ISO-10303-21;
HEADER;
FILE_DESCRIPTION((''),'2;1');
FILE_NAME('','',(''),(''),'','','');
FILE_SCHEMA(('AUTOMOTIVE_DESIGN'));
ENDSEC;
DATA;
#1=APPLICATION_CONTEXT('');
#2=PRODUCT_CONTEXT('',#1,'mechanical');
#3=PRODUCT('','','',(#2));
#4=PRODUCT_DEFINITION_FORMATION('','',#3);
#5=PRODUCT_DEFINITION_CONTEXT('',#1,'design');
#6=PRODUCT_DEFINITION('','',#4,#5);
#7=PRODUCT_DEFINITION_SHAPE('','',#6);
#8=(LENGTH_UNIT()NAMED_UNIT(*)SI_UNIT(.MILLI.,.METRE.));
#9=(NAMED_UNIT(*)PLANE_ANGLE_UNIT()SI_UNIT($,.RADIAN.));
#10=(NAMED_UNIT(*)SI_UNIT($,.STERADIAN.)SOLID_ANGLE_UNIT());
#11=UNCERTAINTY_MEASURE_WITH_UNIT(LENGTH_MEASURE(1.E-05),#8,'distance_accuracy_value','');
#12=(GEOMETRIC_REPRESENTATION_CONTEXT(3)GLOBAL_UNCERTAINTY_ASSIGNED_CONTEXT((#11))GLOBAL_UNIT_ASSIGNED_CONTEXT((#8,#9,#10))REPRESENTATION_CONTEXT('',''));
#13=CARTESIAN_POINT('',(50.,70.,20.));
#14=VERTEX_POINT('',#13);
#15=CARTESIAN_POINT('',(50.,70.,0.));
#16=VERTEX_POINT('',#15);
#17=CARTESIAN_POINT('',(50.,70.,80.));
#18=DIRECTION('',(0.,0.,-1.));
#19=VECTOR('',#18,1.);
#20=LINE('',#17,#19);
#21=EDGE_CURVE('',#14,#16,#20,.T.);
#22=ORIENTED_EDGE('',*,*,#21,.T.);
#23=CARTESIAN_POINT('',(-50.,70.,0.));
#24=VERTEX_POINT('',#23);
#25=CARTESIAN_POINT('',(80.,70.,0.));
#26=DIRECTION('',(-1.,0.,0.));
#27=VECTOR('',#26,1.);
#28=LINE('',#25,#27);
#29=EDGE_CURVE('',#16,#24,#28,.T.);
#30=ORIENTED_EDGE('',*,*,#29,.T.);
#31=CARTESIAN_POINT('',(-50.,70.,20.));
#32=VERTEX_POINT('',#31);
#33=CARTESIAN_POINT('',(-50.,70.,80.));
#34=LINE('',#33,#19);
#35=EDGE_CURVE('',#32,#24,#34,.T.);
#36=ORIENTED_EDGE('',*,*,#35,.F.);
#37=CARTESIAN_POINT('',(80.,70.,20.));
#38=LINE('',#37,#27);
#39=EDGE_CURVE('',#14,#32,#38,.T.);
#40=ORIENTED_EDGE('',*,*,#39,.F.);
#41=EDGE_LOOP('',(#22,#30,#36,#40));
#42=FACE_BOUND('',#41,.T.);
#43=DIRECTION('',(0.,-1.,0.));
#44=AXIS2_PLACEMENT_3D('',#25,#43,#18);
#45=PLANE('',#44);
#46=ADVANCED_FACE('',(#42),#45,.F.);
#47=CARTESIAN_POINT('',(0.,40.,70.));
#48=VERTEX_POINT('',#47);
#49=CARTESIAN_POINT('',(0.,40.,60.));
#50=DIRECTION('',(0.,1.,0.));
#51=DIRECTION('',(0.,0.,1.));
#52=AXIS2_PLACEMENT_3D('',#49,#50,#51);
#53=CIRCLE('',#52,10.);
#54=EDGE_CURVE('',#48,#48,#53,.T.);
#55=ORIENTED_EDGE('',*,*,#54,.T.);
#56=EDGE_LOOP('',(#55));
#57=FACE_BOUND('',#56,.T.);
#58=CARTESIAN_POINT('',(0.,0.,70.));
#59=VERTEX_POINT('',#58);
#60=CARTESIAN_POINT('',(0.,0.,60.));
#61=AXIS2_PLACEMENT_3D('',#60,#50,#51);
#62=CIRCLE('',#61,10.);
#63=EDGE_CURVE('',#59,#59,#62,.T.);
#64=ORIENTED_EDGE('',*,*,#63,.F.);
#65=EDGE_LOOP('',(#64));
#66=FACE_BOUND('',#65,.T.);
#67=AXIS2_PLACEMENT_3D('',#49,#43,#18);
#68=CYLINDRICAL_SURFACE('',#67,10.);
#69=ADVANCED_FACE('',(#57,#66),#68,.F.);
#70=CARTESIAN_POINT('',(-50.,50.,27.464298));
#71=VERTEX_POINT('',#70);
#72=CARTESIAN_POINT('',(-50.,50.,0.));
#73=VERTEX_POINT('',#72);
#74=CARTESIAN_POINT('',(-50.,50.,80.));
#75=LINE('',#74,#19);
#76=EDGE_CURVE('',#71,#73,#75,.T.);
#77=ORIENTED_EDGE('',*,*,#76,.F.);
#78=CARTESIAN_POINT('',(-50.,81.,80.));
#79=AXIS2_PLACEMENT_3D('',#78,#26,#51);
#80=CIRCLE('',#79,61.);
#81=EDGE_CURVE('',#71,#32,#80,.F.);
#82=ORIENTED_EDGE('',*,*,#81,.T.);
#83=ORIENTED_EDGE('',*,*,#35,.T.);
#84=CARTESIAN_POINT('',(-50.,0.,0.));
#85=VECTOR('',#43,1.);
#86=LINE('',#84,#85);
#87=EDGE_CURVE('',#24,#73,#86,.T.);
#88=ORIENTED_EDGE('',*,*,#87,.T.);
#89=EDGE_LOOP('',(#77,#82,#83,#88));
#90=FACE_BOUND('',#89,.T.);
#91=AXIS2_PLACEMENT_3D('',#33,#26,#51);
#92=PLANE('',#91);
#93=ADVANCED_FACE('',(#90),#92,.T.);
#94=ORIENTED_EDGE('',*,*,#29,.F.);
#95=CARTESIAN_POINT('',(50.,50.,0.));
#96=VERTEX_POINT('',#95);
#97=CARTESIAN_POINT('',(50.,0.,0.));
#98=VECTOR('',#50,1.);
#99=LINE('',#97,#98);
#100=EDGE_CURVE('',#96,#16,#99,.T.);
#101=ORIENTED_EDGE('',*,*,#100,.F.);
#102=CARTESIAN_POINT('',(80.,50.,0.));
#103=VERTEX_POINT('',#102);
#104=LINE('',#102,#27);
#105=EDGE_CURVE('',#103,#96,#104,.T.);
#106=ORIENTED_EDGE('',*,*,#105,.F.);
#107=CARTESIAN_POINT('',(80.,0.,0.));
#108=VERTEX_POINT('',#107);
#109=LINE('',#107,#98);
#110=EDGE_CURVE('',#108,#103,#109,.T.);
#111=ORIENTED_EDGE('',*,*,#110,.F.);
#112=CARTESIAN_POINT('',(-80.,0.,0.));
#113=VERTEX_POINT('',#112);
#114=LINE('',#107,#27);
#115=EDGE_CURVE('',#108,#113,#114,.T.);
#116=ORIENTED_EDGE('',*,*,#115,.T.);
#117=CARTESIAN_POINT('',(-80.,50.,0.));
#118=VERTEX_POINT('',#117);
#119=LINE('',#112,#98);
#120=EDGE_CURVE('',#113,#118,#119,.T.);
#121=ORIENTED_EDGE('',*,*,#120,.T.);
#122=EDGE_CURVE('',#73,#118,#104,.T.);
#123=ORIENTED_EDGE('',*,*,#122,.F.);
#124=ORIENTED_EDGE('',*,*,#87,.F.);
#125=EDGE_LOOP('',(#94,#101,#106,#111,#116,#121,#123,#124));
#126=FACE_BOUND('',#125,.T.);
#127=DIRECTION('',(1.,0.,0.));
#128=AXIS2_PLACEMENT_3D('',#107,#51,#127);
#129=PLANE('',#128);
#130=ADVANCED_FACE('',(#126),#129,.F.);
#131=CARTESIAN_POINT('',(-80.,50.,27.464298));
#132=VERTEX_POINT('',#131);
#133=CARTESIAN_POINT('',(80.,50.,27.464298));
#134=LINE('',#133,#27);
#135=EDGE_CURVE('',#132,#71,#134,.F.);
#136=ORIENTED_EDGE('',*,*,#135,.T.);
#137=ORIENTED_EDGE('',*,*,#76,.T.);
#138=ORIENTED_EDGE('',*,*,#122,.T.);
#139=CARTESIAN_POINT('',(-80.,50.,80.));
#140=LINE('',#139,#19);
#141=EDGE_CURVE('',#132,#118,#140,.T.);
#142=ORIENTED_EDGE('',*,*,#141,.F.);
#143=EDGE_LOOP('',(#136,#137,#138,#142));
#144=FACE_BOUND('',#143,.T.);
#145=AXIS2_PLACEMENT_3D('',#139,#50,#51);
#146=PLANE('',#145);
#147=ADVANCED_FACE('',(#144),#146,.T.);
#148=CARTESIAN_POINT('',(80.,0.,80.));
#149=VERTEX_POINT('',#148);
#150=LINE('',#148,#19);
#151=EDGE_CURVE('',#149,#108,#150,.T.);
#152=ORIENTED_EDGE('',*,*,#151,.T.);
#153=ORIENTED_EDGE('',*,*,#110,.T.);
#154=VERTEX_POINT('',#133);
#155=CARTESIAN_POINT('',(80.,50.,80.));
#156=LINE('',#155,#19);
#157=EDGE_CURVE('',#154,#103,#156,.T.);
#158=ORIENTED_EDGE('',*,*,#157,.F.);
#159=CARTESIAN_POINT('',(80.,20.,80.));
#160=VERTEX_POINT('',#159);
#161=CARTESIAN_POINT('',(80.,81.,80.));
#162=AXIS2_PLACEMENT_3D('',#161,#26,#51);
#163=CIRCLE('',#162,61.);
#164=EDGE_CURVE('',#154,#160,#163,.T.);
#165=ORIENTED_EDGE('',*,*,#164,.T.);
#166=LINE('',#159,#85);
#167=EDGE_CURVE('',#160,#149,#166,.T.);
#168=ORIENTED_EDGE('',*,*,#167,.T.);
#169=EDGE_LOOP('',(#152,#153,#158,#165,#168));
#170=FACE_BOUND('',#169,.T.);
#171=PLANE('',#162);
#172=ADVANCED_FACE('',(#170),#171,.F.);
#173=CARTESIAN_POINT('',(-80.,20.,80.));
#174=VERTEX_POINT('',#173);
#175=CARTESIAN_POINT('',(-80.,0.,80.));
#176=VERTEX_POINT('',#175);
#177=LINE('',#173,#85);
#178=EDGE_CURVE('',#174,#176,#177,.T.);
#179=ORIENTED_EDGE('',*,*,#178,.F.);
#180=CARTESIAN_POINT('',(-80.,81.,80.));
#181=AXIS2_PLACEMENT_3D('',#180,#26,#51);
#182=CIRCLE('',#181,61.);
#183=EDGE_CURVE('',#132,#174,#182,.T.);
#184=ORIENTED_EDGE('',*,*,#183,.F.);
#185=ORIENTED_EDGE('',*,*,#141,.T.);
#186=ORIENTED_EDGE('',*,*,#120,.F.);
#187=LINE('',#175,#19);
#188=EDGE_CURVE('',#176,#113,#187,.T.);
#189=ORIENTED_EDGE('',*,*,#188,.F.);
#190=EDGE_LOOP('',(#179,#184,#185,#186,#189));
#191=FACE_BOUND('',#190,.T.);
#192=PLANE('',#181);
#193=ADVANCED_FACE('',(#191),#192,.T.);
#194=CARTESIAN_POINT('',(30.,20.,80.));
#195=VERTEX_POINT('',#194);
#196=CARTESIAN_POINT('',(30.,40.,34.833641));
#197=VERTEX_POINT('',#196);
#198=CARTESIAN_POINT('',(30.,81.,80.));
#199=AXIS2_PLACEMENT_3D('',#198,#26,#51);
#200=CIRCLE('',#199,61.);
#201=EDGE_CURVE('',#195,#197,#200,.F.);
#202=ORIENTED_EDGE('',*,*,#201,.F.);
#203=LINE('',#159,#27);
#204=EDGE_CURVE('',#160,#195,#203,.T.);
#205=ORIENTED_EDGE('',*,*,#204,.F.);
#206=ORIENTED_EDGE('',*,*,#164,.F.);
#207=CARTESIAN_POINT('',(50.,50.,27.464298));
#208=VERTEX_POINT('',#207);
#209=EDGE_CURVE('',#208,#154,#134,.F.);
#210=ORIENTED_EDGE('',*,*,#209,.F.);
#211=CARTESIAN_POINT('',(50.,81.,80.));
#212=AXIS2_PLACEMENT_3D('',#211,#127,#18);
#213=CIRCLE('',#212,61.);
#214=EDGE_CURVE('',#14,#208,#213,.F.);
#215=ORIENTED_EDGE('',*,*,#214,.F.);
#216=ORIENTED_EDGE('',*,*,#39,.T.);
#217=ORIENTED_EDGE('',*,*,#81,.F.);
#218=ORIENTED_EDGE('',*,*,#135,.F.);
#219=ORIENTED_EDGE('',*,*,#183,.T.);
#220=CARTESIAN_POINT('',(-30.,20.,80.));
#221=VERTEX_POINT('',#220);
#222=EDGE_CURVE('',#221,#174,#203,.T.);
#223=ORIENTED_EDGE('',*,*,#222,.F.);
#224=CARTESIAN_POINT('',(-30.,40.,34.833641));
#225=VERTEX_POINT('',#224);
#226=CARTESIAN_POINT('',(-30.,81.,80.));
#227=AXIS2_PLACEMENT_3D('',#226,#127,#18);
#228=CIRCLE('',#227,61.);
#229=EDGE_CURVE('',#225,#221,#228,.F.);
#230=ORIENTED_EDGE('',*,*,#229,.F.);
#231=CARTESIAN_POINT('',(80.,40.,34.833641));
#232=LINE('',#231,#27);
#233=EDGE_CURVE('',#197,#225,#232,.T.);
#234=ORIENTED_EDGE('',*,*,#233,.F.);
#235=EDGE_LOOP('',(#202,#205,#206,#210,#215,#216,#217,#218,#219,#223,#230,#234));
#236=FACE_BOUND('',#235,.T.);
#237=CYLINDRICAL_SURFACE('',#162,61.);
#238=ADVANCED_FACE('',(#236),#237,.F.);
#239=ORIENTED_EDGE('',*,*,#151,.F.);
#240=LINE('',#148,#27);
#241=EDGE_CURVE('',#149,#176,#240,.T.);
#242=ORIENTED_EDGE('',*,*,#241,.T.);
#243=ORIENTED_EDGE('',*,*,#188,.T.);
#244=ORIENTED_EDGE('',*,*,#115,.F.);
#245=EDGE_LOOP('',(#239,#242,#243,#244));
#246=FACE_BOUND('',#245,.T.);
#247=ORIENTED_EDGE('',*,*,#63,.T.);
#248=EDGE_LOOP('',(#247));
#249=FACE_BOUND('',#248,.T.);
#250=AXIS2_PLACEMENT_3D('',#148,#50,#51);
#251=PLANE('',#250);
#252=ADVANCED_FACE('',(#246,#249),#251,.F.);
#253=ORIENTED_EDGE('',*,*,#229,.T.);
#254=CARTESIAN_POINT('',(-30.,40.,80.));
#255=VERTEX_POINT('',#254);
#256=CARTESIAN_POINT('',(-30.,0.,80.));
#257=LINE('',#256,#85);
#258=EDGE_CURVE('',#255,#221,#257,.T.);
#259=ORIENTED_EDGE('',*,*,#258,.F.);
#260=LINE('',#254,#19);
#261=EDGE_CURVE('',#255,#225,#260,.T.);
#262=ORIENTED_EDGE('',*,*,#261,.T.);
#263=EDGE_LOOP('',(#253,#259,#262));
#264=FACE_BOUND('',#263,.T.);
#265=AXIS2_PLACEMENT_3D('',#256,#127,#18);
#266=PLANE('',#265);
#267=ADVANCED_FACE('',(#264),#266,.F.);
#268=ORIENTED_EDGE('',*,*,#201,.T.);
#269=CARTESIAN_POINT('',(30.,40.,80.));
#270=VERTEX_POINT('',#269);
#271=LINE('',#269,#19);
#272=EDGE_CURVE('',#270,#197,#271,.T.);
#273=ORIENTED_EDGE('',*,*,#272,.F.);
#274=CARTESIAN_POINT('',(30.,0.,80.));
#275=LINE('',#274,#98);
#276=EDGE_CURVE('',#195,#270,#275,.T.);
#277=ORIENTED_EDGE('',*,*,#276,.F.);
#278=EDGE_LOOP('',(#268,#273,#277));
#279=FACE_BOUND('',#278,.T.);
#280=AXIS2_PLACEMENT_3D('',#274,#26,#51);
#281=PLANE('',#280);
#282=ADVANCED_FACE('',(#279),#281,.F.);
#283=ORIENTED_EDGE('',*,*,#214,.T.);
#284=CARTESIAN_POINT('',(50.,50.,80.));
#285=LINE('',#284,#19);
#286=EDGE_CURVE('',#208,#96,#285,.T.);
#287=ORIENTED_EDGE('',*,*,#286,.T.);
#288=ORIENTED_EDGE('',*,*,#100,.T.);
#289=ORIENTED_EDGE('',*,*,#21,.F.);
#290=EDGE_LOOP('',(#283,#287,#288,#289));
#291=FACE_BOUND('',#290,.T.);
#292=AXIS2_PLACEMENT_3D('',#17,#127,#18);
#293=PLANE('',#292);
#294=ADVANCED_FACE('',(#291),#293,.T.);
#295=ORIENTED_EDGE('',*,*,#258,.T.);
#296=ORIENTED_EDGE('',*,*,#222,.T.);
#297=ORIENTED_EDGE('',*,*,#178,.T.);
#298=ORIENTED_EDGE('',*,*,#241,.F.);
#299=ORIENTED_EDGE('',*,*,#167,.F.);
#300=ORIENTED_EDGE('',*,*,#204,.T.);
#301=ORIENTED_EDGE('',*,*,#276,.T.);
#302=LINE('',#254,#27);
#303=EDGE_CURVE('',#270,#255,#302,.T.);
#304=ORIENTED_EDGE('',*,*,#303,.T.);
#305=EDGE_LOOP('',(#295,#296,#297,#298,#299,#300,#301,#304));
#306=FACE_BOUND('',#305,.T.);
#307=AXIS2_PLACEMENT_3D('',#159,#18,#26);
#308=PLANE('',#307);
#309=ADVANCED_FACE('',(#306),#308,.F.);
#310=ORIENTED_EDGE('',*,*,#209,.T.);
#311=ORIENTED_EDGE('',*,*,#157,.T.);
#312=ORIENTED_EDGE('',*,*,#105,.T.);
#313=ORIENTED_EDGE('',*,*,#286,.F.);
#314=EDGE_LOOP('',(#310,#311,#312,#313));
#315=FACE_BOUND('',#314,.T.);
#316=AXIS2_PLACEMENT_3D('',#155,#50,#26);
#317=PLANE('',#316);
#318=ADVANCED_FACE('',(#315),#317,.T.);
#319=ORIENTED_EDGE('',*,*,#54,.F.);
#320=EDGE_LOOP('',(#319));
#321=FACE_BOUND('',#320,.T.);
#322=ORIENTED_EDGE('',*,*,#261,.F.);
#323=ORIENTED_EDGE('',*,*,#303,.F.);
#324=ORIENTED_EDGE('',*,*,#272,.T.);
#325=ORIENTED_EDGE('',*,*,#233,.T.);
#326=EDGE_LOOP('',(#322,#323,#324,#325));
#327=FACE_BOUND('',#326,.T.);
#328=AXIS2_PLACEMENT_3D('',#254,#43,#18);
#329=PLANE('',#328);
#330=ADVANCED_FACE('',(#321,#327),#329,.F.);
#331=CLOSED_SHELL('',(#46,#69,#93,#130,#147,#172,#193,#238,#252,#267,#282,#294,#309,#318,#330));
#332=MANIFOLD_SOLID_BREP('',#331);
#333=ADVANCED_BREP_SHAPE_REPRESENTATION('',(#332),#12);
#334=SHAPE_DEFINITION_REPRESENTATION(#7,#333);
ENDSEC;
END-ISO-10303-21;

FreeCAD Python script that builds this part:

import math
import FreeCAD as App
import Part
import Sketcher
Q = App.Units.Quantity


def add_polygon(sketch, points):
    """Adds a closed chain of lines whose ends are joined by coincident constraints."""
    first, n = sketch.GeometryCount, len(points)
    for a, b in zip(points, points[1:] + points[:1]):
        sketch.addGeometry(Part.LineSegment(App.Vector(*a, 0), App.Vector(*b, 0)), False)
    for i in range(n):
        sketch.addConstraint(Sketcher.Constraint("Coincident", first + i, 2, first + (i + 1) % n, 1))

doc = App.newDocument("Part")
params = doc.addObject("Spreadsheet::Sheet", "Params")
for row, (alias, value) in enumerate([
    ("sketch1_radius", "61 mm"),
    ("sketch1_width", "70 mm"),
    ("sketch1_width2", "20 mm"),
    ("sketch1_height", "80 mm"),
    ("pad1_length", "160 mm"),
    ("sketch2_width", "30 mm"),
    ("sketch2_height", "20 mm"),
    ("sketch3_width", "60 mm"),
    ("sketch3_height", "40 mm"),
    ("pad2_length", "80 mm"),
    ("sketch4_diameter", "20 mm"),
    ("pocket2_length", "40 mm"),
], start=1):
    params.set(f"A{row}", alias)
    params.set(f"B{row}", "=" + value)
    params.setAlias(f"B{row}", alias)

body = doc.addObject("PartDesign::Body", "Body")

# Sketch on YZ plane
sketch1 = body.newObject("Sketcher::SketchObject", "Sketch")
sketch1.AttachmentSupport = (doc.getObject("YZ_Plane"), [""])
sketch1.MapMode = "FlatFace"
sketch1.addGeometry([
    Part.LineSegment(App.Vector(0, 0, 0), App.Vector(70, 0, 0)),  # 0
    Part.LineSegment(App.Vector(70, 0, 0), App.Vector(70, 20, 0)),  # 1
    Part.ArcOfCircle(Part.Circle(App.Vector(81, 80, 0), App.Vector(0, 0, 1), 61), math.radians(180), math.radians(260)),  # 2
    Part.LineSegment(App.Vector(20, 80, 0), App.Vector(0, 80, 0)),  # 3
    Part.LineSegment(App.Vector(0, 80, 0), App.Vector(0, 0, 0)),  # 4
], False)
sketch1.addConstraint([
    Sketcher.Constraint("Coincident", 0, 2, 1, 1),
    Sketcher.Constraint("Coincident", 1, 2, 2, 2),
    Sketcher.Constraint("Coincident", 2, 1, 3, 1),
    Sketcher.Constraint("Coincident", 3, 2, 4, 1),
    Sketcher.Constraint("Coincident", 4, 2, 0, 1),
    Sketcher.Constraint("Horizontal", 0),
    Sketcher.Constraint("Vertical", 1),
    Sketcher.Constraint("Horizontal", 3),
    Sketcher.Constraint("Vertical", 4),
    Sketcher.Constraint("Coincident", 4, 2, -1, 1),
    Sketcher.Constraint("Equal", 3, 1),
    Sketcher.Constraint("Radius", 2, Q("61 mm")),
    Sketcher.Constraint("DistanceX", 0, 1, 0, 2, Q("70 mm")),
    Sketcher.Constraint("DistanceX", 3, 2, 3, 1, Q("20 mm")),
    Sketcher.Constraint("DistanceY", 4, 2, 4, 1, Q("80 mm")),
])
sketch1.setExpression("Constraints[11]", "Params.sketch1_radius")
sketch1.setExpression("Constraints[12]", "Params.sketch1_width")
sketch1.setExpression("Constraints[13]", "Params.sketch1_width2")
sketch1.setExpression("Constraints[14]", "Params.sketch1_height")
pad1 = body.newObject("PartDesign::Pad", "Pad")
pad1.Profile = sketch1
pad1.setExpression("Length", "Params.pad1_length")
pad1.Midplane = True

# Sketch on XY plane
sketch2 = body.newObject("Sketcher::SketchObject", "Sketch001")
sketch2.AttachmentSupport = (doc.getObject("XY_Plane"), [""])
sketch2.MapMode = "FlatFace"
add_polygon(sketch2, [(-80, 70), (-80, 50), (-50, 50), (-50, 70)])  # lines 0-3
add_polygon(sketch2, [(50, 70), (50, 50), (80, 50), (80, 70)])  # lines 4-7
sketch2.addConstraint([
    Sketcher.Constraint("Vertical", 0),
    Sketcher.Constraint("Horizontal", 1),
    Sketcher.Constraint("Vertical", 2),
    Sketcher.Constraint("Horizontal", 3),
    Sketcher.Constraint("Vertical", 4),
    Sketcher.Constraint("Horizontal", 5),
    Sketcher.Constraint("Vertical", 6),
    Sketcher.Constraint("Horizontal", 7),
    Sketcher.Constraint("Symmetric", 1, 2, 4, 2, -2),
    Sketcher.Constraint("Symmetric", 3, 2, 6, 2, -2),
    Sketcher.Constraint("DistanceX", 1, 1, 1, 2, Q("30 mm")),
    Sketcher.Constraint("DistanceY", 0, 2, 0, 1, Q("20 mm")),
    Sketcher.Constraint("DistanceX", 0, 2, -1, 1, Q("80 mm")),
    Sketcher.Constraint("DistanceY", -1, 1, 0, 2, Q("50 mm")),
])
sketch2.setExpression("Constraints[18]", "Params.sketch2_width")
sketch2.setExpression("Constraints[19]", "Params.sketch2_height")
pocket1 = body.newObject("PartDesign::Pocket", "Pocket")
pocket1.Profile = sketch2
pocket1.Type = "ThroughAll"
pocket1.Midplane = True

# Sketch on XY plane
sketch3 = body.newObject("Sketcher::SketchObject", "Sketch002")
sketch3.AttachmentSupport = (doc.getObject("XY_Plane"), [""])
sketch3.MapMode = "FlatFace"
add_polygon(sketch3, [(-30, 40), (-30, 0), (30, 0), (30, 40)])  # lines 0-3
sketch3.addConstraint([
    Sketcher.Constraint("Vertical", 0),
    Sketcher.Constraint("Horizontal", 1),
    Sketcher.Constraint("Vertical", 2),
    Sketcher.Constraint("Horizontal", 3),
    Sketcher.Constraint("Symmetric", 0, 2, 1, 2, -1, 1),
    Sketcher.Constraint("DistanceX", 1, 1, 1, 2, Q("60 mm")),
    Sketcher.Constraint("DistanceY", 0, 2, 0, 1, Q("40 mm")),
])
sketch3.setExpression("Constraints[9]", "Params.sketch3_width")
sketch3.setExpression("Constraints[10]", "Params.sketch3_height")
pad2 = body.newObject("PartDesign::Pad", "Pad001")
pad2.Profile = sketch3
pad2.setExpression("Length", "Params.pad2_length")

# Sketch on XZ plane
sketch4 = body.newObject("Sketcher::SketchObject", "Sketch003")
sketch4.AttachmentSupport = (doc.getObject("XZ_Plane"), [""])
sketch4.MapMode = "FlatFace"
sketch4.addGeometry(Part.Circle(App.Vector(0, 60, 0), App.Vector(0, 0, 1), 10), False)
sketch4.addConstraint([
    Sketcher.Constraint("PointOnObject", 0, 3, -2),
    Sketcher.Constraint("Diameter", 0, Q("20 mm")),
    Sketcher.Constraint("DistanceY", -1, 1, 0, 3, Q("60 mm")),
])
sketch4.setExpression("Constraints[1]", "Params.sketch4_diameter")
pocket2 = body.newObject("PartDesign::Pocket", "Pocket001")
pocket2.Profile = sketch4
pocket2.setExpression("Length", "Params.pocket2_length")

doc.recompute()
